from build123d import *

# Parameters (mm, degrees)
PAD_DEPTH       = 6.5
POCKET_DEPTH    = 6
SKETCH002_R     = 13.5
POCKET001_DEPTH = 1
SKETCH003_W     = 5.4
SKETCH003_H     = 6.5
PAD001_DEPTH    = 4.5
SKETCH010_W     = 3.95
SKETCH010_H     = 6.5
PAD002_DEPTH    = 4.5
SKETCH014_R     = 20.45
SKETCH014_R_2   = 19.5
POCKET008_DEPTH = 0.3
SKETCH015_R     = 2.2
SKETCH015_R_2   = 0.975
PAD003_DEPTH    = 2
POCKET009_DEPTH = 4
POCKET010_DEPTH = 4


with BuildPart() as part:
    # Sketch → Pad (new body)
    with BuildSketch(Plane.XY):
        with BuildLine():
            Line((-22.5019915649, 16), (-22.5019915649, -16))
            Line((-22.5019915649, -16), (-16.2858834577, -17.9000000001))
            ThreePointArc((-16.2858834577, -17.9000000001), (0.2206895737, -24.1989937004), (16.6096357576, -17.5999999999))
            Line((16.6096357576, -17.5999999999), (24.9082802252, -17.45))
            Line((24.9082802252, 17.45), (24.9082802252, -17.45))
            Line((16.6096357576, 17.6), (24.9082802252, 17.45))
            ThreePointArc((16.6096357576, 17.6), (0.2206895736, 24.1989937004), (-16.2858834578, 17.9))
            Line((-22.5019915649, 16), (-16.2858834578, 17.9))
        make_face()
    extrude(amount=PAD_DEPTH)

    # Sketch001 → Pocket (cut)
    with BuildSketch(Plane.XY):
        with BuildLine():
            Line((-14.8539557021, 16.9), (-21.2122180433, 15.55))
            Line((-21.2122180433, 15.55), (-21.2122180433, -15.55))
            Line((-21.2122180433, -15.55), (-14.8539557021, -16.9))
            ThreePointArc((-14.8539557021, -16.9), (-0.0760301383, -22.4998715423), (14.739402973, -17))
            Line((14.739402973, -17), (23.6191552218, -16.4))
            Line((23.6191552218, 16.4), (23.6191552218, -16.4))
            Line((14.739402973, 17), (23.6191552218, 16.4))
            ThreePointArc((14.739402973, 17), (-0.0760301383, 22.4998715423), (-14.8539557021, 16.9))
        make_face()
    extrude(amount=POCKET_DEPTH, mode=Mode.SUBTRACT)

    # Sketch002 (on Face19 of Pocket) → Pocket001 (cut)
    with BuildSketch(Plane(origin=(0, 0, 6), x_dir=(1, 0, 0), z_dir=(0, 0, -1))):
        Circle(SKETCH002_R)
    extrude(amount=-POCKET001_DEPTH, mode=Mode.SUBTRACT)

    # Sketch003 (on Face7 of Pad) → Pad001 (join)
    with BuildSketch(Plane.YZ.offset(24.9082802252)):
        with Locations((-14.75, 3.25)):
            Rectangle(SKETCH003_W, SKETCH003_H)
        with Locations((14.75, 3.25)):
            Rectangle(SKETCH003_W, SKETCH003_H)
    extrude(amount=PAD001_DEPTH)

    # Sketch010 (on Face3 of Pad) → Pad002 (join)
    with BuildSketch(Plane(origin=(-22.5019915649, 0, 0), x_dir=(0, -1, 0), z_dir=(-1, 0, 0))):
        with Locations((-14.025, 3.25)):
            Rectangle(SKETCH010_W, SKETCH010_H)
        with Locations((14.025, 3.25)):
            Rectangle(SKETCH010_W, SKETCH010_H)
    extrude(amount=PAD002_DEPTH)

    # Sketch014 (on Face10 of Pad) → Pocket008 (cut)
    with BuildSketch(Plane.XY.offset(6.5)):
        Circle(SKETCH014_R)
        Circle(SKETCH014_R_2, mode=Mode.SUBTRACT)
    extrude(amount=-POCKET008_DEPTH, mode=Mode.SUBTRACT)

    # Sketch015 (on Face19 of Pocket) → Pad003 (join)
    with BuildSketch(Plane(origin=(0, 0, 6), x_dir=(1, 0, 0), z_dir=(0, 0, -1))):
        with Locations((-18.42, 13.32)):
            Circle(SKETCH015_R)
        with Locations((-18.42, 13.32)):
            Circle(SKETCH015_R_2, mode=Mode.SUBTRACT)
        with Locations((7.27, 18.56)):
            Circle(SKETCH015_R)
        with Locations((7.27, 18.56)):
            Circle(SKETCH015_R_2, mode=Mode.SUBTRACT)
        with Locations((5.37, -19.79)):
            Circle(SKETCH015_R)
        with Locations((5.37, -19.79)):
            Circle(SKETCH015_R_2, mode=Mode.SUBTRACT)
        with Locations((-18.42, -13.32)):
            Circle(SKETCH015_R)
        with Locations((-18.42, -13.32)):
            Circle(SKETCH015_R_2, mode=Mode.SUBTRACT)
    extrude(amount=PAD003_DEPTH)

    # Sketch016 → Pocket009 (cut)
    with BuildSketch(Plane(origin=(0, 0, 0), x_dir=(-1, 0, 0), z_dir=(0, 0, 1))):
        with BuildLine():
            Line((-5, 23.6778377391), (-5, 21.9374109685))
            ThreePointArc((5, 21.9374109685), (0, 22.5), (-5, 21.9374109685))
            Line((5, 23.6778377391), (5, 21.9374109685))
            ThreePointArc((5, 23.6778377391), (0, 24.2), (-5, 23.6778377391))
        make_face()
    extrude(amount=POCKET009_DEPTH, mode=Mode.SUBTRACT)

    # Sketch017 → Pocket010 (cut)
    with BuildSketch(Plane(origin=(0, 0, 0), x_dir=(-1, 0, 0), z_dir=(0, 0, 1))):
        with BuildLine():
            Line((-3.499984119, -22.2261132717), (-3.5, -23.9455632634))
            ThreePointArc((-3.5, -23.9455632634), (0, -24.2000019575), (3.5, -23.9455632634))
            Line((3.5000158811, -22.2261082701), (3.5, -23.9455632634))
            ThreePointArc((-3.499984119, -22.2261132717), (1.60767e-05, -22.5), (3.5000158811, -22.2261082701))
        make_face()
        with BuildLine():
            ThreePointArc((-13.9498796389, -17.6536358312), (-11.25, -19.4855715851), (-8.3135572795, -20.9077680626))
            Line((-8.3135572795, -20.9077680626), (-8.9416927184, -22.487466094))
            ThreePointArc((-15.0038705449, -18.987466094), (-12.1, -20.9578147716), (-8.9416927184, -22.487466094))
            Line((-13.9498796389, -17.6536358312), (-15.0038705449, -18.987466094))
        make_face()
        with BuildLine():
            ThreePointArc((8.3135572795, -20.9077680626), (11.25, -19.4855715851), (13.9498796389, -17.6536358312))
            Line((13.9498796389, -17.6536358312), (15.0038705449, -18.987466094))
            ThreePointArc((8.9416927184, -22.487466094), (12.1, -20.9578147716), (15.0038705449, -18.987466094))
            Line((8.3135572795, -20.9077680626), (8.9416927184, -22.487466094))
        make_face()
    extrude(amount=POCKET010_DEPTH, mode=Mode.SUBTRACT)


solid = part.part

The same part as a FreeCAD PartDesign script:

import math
import FreeCAD as App
import Part
import Sketcher

V = App.Vector

doc = App.newDocument("Part")
body = doc.addObject("PartDesign::Body", "Body")

sketch1 = body.newObject("Sketcher::SketchObject", "Sketch")
sketch1.AttachmentSupport = (doc.getObject("XY_Plane"), [""])
sketch1.MapMode = "FlatFace"
sketch1.addGeometry([
    Part.LineSegment(V(-23, 16, 0), V(-23, -16, 0)),
    Part.LineSegment(V(-23, -16, 0), V(-16, -18, 0)),
    Part.ArcOfCircle(Part.Circle(V(0, 0, 0), V(0, 0, 1), 24), math.radians(-132), math.radians(-47)),
    Part.LineSegment(V(17, -18, 0), V(25, -17, 0)),
    Part.LineSegment(V(25, -17, 0), V(25, 17, 0)),
    Part.LineSegment(V(25, 17, 0), V(17, 18, 0)),
    Part.ArcOfCircle(Part.Circle(V(0, 0, 0), V(0, 0, 1), 24), math.radians(47), math.radians(132)),
    Part.LineSegment(V(-16, 18, 0), V(-23, 16, 0)),
], False)
sketch1.addConstraint([
    Sketcher.Constraint("Coincident", 0, 2, 1, 1),
    Sketcher.Constraint("Coincident", 1, 2, 2, 1),
    Sketcher.Constraint("Coincident", 2, 2, 3, 1),
    Sketcher.Constraint("Coincident", 3, 2, 4, 1),
    Sketcher.Constraint("Coincident", 4, 2, 5, 1),
    Sketcher.Constraint("Coincident", 5, 2, 6, 1),
    Sketcher.Constraint("Coincident", 6, 2, 7, 1),
    Sketcher.Constraint("Coincident", 7, 2, 0, 1),
    Sketcher.Constraint("Vertical", 0),
    Sketcher.Constraint("Vertical", 4),
    Sketcher.Constraint("Coincident", 2, 3, -1, 1),
    Sketcher.Constraint("Coincident", 6, 3, -1, 1),
    Sketcher.Constraint("Equal", 2, 6),
    Sketcher.Constraint("Vertical", 2, 2, 5, 2),
    Sketcher.Constraint("Vertical", 1, 2, 6, 2),
    Sketcher.Constraint("Equal", 3, 5),
    Sketcher.Constraint("Equal", 1, 7),
    Sketcher.Constraint("Radius", 2, 24.2),
    Sketcher.Constraint("DistanceY", 0, 2, 0, 1, 32.0),
    Sketcher.Constraint("DistanceY", 4, 1, 4, 2, 34.9),
    Sketcher.Constraint("Distance", 1, 6.5),
    Sketcher.Constraint("Distance", 3, 8.3),
    Sketcher.Constraint("DistanceY", 1, 2, -1, 1, 17.9),
    Sketcher.Constraint("DistanceY", 2, 2, -1, 1, 17.6),
])
pad1 = body.newObject("PartDesign::Pad", "Pad")
pad1.Profile = sketch1
pad1.Length = 6.5

sketch2 = body.newObject("Sketcher::SketchObject", "Sketch001")
sketch2.AttachmentSupport = (doc.getObject("XY_Plane"), [""])
sketch2.MapMode = "FlatFace"
sketch2.addGeometry([
    Part.LineSegment(V(-15, 17, 0), V(-21, 16, 0)),
    Part.LineSegment(V(-21, 16, 0), V(-21, -16, 0)),
    Part.LineSegment(V(-21, -16, 0), V(-15, -17, 0)),
    Part.ArcOfCircle(Part.Circle(V(0, 0, 0), V(0, 0, 1), 22), math.radians(-131), math.radians(-49)),
    Part.LineSegment(V(15, -17, 0), V(24, -16, 0)),
    Part.LineSegment(V(24, -16, 0), V(24, 16, 0)),
    Part.LineSegment(V(24, 16, 0), V(15, 17, 0)),
    Part.ArcOfCircle(Part.Circle(V(0, 0, 0), V(0, 0, 1), 22), math.radians(49), math.radians(131)),
], False)
sketch2.addConstraint([
    Sketcher.Constraint("Coincident", 0, 2, 1, 1),
    Sketcher.Constraint("Coincident", 1, 2, 2, 1),
    Sketcher.Constraint("Coincident", 2, 2, 3, 1),
    Sketcher.Constraint("Coincident", 3, 2, 4, 1),
    Sketcher.Constraint("Coincident", 4, 2, 5, 1),
    Sketcher.Constraint("Coincident", 5, 2, 6, 1),
    Sketcher.Constraint("Coincident", 6, 2, 7, 1),
    Sketcher.Constraint("Coincident", 7, 2, 0, 1),
    Sketcher.Constraint("Vertical", 1),
    Sketcher.Constraint("Vertical", 5),
    Sketcher.Constraint("Coincident", 3, 3, -1, 1),
    Sketcher.Constraint("Coincident", 7, 3, -1, 1),
    Sketcher.Constraint("Equal", 3, 7),
    Sketcher.Constraint("Vertical", 3, 2, 6, 2),
    Sketcher.Constraint("Vertical", 2, 2, 7, 2),
    Sketcher.Constraint("Equal", 0, 2),
    Sketcher.Constraint("Equal", 4, 6),
    Sketcher.Constraint("Radius", 3, 22.5),
    Sketcher.Constraint("DistanceY", 1, 2, 1, 1, 31.1),
    Sketcher.Constraint("DistanceY", 5, 1, 5, 2, 32.8),
    Sketcher.Constraint("DistanceY", 3, 2, -1, 1, 17.0),
    Sketcher.Constraint("Distance", 0, 6.5),
    Sketcher.Constraint("Distance", 4, 8.9),
    Sketcher.Constraint("DistanceY", 2, 2, -1, 1, 16.9),
])
pocket1 = body.newObject("PartDesign::Pocket", "Pocket")
pocket1.Profile = sketch2
pocket1.Length = 6
pocket1.Reversed = True

sketch3 = body.newObject("Sketcher::SketchObject", "Sketch002")
sketch3.AttachmentSupport = (doc.getObject("XY_Plane"), [""])
sketch3.MapMode = "FlatFace"
sketch3.AttachmentOffset = App.Placement(V(0, 0, 6), App.Rotation())
sketch3.addGeometry(Part.Circle(V(0, 0, 0), V(0, 0, 1), 14), False)
sketch3.addConstraint([
    Sketcher.Constraint("Coincident", 0, 3, -1, 1),
    Sketcher.Constraint("Diameter", 0, 27.0),
])
pocket2 = body.newObject("PartDesign::Pocket", "Pocket001")
pocket2.Profile = sketch3
pocket2.Length = 1
pocket2.Reversed = True

sketch4 = body.newObject("Sketcher::SketchObject", "Sketch003")
sketch4.AttachmentSupport = (doc.getObject("YZ_Plane"), [""])
sketch4.MapMode = "FlatFace"
sketch4.AttachmentOffset = App.Placement(V(0, 0, 24.90828), App.Rotation())
sketch4.addGeometry([
    Part.LineSegment(V(-17, 6, 0), V(-17, 0, 0)),
    Part.LineSegment(V(-17, 0, 0), V(-12, 0, 0)),
    Part.LineSegment(V(-12, 0, 0), V(-12, 6, 0)),
    Part.LineSegment(V(-12, 6, 0), V(-17, 6, 0)),
    Part.LineSegment(V(12, 6, 0), V(12, 0, 0)),
    Part.LineSegment(V(12, 0, 0), V(17, 0, 0)),
    Part.LineSegment(V(17, 0, 0), V(17, 6, 0)),
    Part.LineSegment(V(17, 6, 0), V(12, 6, 0)),
], False)
sketch4.addConstraint([
    Sketcher.Constraint("Coincident", 0, 2, 1, 1),
    Sketcher.Constraint("Coincident", 1, 2, 2, 1),
    Sketcher.Constraint("Coincident", 2, 2, 3, 1),
    Sketcher.Constraint("Coincident", 3, 2, 0, 1),
    Sketcher.Constraint("Coincident", 4, 2, 5, 1),
    Sketcher.Constraint("Coincident", 5, 2, 6, 1),
    Sketcher.Constraint("Coincident", 6, 2, 7, 1),
    Sketcher.Constraint("Coincident", 7, 2, 4, 1),
    Sketcher.Constraint("Vertical", 0),
    Sketcher.Constraint("Horizontal", 1),
    Sketcher.Constraint("Vertical", 2),
    Sketcher.Constraint("Horizontal", 3),
    Sketcher.Constraint("Vertical", 4),
    Sketcher.Constraint("Horizontal", 5),
    Sketcher.Constraint("Vertical", 6),
    Sketcher.Constraint("Horizontal", 7),
    Sketcher.Constraint("Symmetric", 1, 2, 4, 2, -1, 1),
    Sketcher.Constraint("Symmetric", 0, 2, 5, 2, -2),
    Sketcher.Constraint("Horizontal", 3, 2, 6, 2),
    Sketcher.Constraint("DistanceX", 1, 1, 1, 2, 5.4),
    Sketcher.Constraint("DistanceY", 0, 2, 0, 1, 6.5),
    Sketcher.Constraint("DistanceX", 1, 2, 4, 2, 24.1),
])
pad2 = body.newObject("PartDesign::Pad", "Pad001")
pad2.Profile = sketch4
pad2.Length = 4.5

sketch5 = body.newObject("Sketcher::SketchObject", "Sketch004")
sketch5.AttachmentSupport = (doc.getObject("YZ_Plane"), [""])
sketch5.MapMode = "FlatFace"
sketch5.AttachmentOffset = App.Placement(V(0, 0, -22.501992), App.Rotation())
sketch5.addGeometry([
    Part.LineSegment(V(16, 6.5, 0), V(16, 0, 0)),
    Part.LineSegment(V(16, 0, 0), V(12.1, 0, 0)),
    Part.LineSegment(V(12.1, 0, 0), V(12.1, 6.5, 0)),
    Part.LineSegment(V(12.1, 6.5, 0), V(16, 6.5, 0)),
    Part.LineSegment(V(-12.1, 6.5, 0), V(-12.1, 0, 0)),
    Part.LineSegment(V(-12.1, 0, 0), V(-16, 0, 0)),
    Part.LineSegment(V(-16, 0, 0), V(-16, 6.5, 0)),
    Part.LineSegment(V(-16, 6.5, 0), V(-12.1, 6.5, 0)),
], False)
sketch5.addConstraint([
    Sketcher.Constraint("Coincident", 0, 2, 1, 1),
    Sketcher.Constraint("Coincident", 1, 2, 2, 1),
    Sketcher.Constraint("Coincident", 2, 2, 3, 1),
    Sketcher.Constraint("Coincident", 3, 2, 0, 1),
    Sketcher.Constraint("Coincident", 4, 2, 5, 1),
    Sketcher.Constraint("Coincident", 5, 2, 6, 1),
    Sketcher.Constraint("Coincident", 6, 2, 7, 1),
    Sketcher.Constraint("Coincident", 7, 2, 4, 1),
    Sketcher.Constraint("Vertical", 0),
    Sketcher.Constraint("Horizontal", 1),
    Sketcher.Constraint("Vertical", 2),
    Sketcher.Constraint("Horizontal", 3),
    Sketcher.Constraint("Vertical", 4),
    Sketcher.Constraint("Horizontal", 5),
    Sketcher.Constraint("Vertical", 6),
    Sketcher.Constraint("Horizontal", 7),
    Sketcher.Constraint("Symmetric", 1, 2, 4, 2, -1, 1),
    Sketcher.Constraint("Symmetric", 0, 2, 5, 2, -2),
    Sketcher.Constraint("Horizontal", 3, 2, 6, 2),
    Sketcher.Constraint("DistanceY", 0, 2, 0, 1, 6.5),
    Sketcher.Constraint("DistanceX", -1, 1, 0, 2, 16.0),
    Sketcher.Constraint("DistanceX", 1, 2, 1, 1, 3.95),
])
pad3 = body.newObject("PartDesign::Pad", "Pad002")
pad3.Profile = sketch5
pad3.Length = 4.5
pad3.Reversed = True

sketch6 = body.newObject("Sketcher::SketchObject", "Sketch005")
sketch6.AttachmentSupport = (doc.getObject("XY_Plane"), [""])
sketch6.MapMode = "FlatFace"
sketch6.AttachmentOffset = App.Placement(V(0, 0, 6.5), App.Rotation())
sketch6.addGeometry([
    Part.Circle(V(0, 0, 0), V(0, 0, 1), 20),
    Part.Circle(V(0, 0, 0), V(0, 0, 1), 20),
], False)
sketch6.addConstraint([
    Sketcher.Constraint("Coincident", 0, 3, -1, 1),
    Sketcher.Constraint("Coincident", 1, 3, -1, 1),
    Sketcher.Constraint("Diameter", 1, 39.0),
    Sketcher.Constraint("Diameter", 0, 40.9),
])
pocket3 = body.newObject("PartDesign::Pocket", "Pocket002")
pocket3.Profile = sketch6
pocket3.Length = 0.3

sketch7 = body.newObject("Sketcher::SketchObject", "Sketch006")
sketch7.AttachmentSupport = (doc.getObject("XY_Plane"), [""])
sketch7.MapMode = "FlatFace"
sketch7.AttachmentOffset = App.Placement(V(0, 0, 6), App.Rotation())
sketch7.addGeometry([
    Part.Circle(V(-18.4, -13.3, 0), V(0, 0, 1), 2.2),
    Part.Circle(V(-18.4, -13.3, 0), V(0, 0, 1), 1),
    Part.Circle(V(7.3, -18.6, 0), V(0, 0, 1), 2.2),
    Part.Circle(V(7.3, -18.6, 0), V(0, 0, 1), 1),
    Part.Circle(V(5.4, 19.8, 0), V(0, 0, 1), 2.2),
    Part.Circle(V(5.4, 19.8, 0), V(0, 0, 1), 1),
    Part.Circle(V(-18.4, 13.3, 0), V(0, 0, 1), 2.2),
    Part.Circle(V(-18.4, 13.3, 0), V(0, 0, 1), 1),
], False)
sketch7.addConstraint([
    Sketcher.Constraint("Coincident", 1, 3, 0, 3),
    Sketcher.Constraint("Coincident", 3, 3, 2, 3),
    Sketcher.Constraint("Coincident", 5, 3, 4, 3),
    Sketcher.Constraint("Coincident", 7, 3, 6, 3),
    Sketcher.Constraint("Equal", 0, 2),
    Sketcher.Constraint("Equal", 1, 3),
    Sketcher.Constraint("Equal", 2, 4),
    Sketcher.Constraint("Equal", 3, 5),
    Sketcher.Constraint("Equal", 4, 6),
    Sketcher.Constraint("Equal", 5, 7),
    Sketcher.Constraint("Symmetric", 0, 3, 6, 3, -1),
    Sketcher.Constraint("Diameter", 0, 4.4),
    Sketcher.Constraint("Diameter", 1, 1.95),
    Sketcher.Constraint("DistanceX", 4, 3, 2, 3, 1.9),
    Sketcher.Constraint("DistanceX", 0, 3, -1, 1, 18.42),
    Sketcher.Constraint("DistanceY", 0, 3, -1, 1, 13.32),
    Sketcher.Constraint("DistanceX", -1, 1, 2, 3, 7.27),
    Sketcher.Constraint("DistanceY", 2, 3, -1, 1, 18.56),
    Sketcher.Constraint("DistanceY", -1, 1, 4, 3, 19.79),
])
pad4 = body.newObject("PartDesign::Pad", "Pad003")
pad4.Profile = sketch7
pad4.Length = 2
pad4.Reversed = True

sketch8 = body.newObject("Sketcher::SketchObject", "Sketch007")
sketch8.AttachmentSupport = (doc.getObject("XY_Plane"), [""])
sketch8.MapMode = "FlatFace"
sketch8.addGeometry([
    Part.LineSegment(V(5, -23.7, 0), V(5, -21.9, 0)),
    Part.ArcOfCircle(Part.Circle(V(0, 0, 0), V(0, 0, 1), 22.5), math.radians(-103), math.radians(-77)),
    Part.LineSegment(V(-5, -21.9, 0), V(-5, -23.7, 0)),
    Part.ArcOfCircle(Part.Circle(V(0, 0, 0), V(0, 0, 1), 24.2), math.radians(-102), math.radians(-78)),
], False)
sketch8.addConstraint([
    Sketcher.Constraint("Coincident", 0, 2, 1, 2),
    Sketcher.Constraint("Coincident", 1, 1, 2, 1),
    Sketcher.Constraint("Coincident", 2, 2, 3, 1),
    Sketcher.Constraint("Coincident", 3, 2, 0, 1),
    Sketcher.Constraint("Vertical", 0),
    Sketcher.Constraint("Vertical", 2),
    Sketcher.Constraint("Coincident", 1, 3, -1, 1),
    Sketcher.Constraint("Coincident", 3, 3, -1, 1),
    Sketcher.Constraint("Horizontal", 0, 2, 1, 1),
    Sketcher.Constraint("Radius", 1, 22.5),
    Sketcher.Constraint("Radius", 3, 24.2),
    Sketcher.Constraint("DistanceX", -1, 1, 0, 2, 5.0),
])
pocket4 = body.newObject("PartDesign::Pocket", "Pocket003")
pocket4.Profile = sketch8
pocket4.Length = 4
pocket4.Reversed = True

sketch9 = body.newObject("Sketcher::SketchObject", "Sketch008")
sketch9.AttachmentSupport = (doc.getObject("XY_Plane"), [""])
sketch9.MapMode = "FlatFace"
sketch9.addGeometry([
    Part.LineSegment(V(3.5, 22.2, 0), V(3.5, 23.9, 0)),
    Part.ArcOfCircle(Part.Circle(V(0, 0, 0), V(0, 0, 1), 24.2), math.radians(81.68), math.radians(98.32)),
    Part.LineSegment(V(-3.5, 23.9, 0), V(-3.5, 22.2, 0)),
    Part.ArcOfCircle(Part.Circle(V(0, 0, 0), V(0, 0, 1), 22.5), math.radians(81.05), math.radians(98.95)),
    Part.ArcOfCircle(Part.Circle(V(0, 0, 0), V(0, 0, 1), 22.5), math.radians(51.68), math.radians(68.32)),
    Part.LineSegment(V(13.9, 17.7, 0), V(15, 19, 0)),
    Part.ArcOfCircle(Part.Circle(V(0, 0, 0), V(0, 0, 1), 24.2), math.radians(51.68), math.radians(68.32)),
    Part.LineSegment(V(8.9, 22.5, 0), V(8.3, 20.9, 0)),
    Part.ArcOfCircle(Part.Circle(V(0, 0, 0), V(0, 0, 1), 22.5), math.radians(111.68), math.radians(128.32)),
    Part.LineSegment(V(-8.3, 20.9, 0), V(-8.9, 22.5, 0)),
    Part.ArcOfCircle(Part.Circle(V(0, 0, 0), V(0, 0, 1), 24.2), math.radians(111.68), math.radians(128.32)),
    Part.LineSegment(V(-15, 19, 0), V(-13.9, 17.7, 0)),
], False)
sketch9.addConstraint([
    Sketcher.Constraint("Coincident", 0, 2, 1, 1),
    Sketcher.Constraint("Coincident", 1, 2, 2, 1),
    Sketcher.Constraint("Coincident", 2, 2, 3, 2),
    Sketcher.Constraint("Coincident", 3, 1, 0, 1),
    Sketcher.Constraint("Coincident", 4, 1, 5, 1),
    Sketcher.Constraint("Coincident", 5, 2, 6, 1),
    Sketcher.Constraint("Coincident", 6, 2, 7, 1),
    Sketcher.Constraint("Coincident", 7, 2, 4, 2),
    Sketcher.Constraint("Coincident", 8, 1, 9, 1),
    Sketcher.Constraint("Coincident", 9, 2, 10, 1),
    Sketcher.Constraint("Coincident", 10, 2, 11, 1),
    Sketcher.Constraint("Coincident", 11, 2, 8, 2),
    Sketcher.Constraint("Coincident", 3, 3, -1, 1),
    Sketcher.Constraint("Coincident", 4, 3, -1, 1),
    Sketcher.Constraint("Coincident", 6, 3, -1, 1),
    Sketcher.Constraint("Coincident", 8, 3, -1, 1),
    Sketcher.Constraint("Coincident", 10, 3, -1, 1),
    Sketcher.Constraint("Equal", 3, 4),
    Sketcher.Constraint("Equal", 4, 8),
    Sketcher.Constraint("Equal", 6, 10),
    Sketcher.Constraint("Symmetric", 0, 2, 1, 2, -2),
    Sketcher.Constraint("Parallel", 0, 2),
    Sketcher.Constraint("Horizontal", 7, 2, 8, 1),
    Sketcher.Constraint("Horizontal", 6, 2, 9, 2),
    Sketcher.Constraint("Horizontal", 5, 2, 10, 2),
    Sketcher.Constraint("Horizontal", 4, 1, 11, 2),
    Sketcher.Constraint("Radius", 3, 22.5),
    Sketcher.Constraint("Radius", 6, 24.2),
    Sketcher.Constraint("DistanceX", 1, 2, 0, 2, 7.0),
    Sketcher.Constraint("DistanceY", 5, 2, 6, 2, 3.5),
    Sketcher.Constraint("Radius", 1, 24.199816),
    Sketcher.Constraint("DistanceY", 7, 2, 6, 2, 1.579698),
    Sketcher.Constraint("Distance", 0, 1.71945),
    Sketcher.Constraint("DistanceY", -1, 1, 2, 2, 22.226108),
    Sketcher.Constraint("DistanceX", -1, 1, 4, 1, 13.94988),
    Sketcher.Constraint("DistanceX", -1, 1, 5, 2, 15.003871),
])
pocket5 = body.newObject("PartDesign::Pocket", "Pocket004")
pocket5.Profile = sketch9
pocket5.Length = 4
pocket5.Reversed = True

doc.recompute()
